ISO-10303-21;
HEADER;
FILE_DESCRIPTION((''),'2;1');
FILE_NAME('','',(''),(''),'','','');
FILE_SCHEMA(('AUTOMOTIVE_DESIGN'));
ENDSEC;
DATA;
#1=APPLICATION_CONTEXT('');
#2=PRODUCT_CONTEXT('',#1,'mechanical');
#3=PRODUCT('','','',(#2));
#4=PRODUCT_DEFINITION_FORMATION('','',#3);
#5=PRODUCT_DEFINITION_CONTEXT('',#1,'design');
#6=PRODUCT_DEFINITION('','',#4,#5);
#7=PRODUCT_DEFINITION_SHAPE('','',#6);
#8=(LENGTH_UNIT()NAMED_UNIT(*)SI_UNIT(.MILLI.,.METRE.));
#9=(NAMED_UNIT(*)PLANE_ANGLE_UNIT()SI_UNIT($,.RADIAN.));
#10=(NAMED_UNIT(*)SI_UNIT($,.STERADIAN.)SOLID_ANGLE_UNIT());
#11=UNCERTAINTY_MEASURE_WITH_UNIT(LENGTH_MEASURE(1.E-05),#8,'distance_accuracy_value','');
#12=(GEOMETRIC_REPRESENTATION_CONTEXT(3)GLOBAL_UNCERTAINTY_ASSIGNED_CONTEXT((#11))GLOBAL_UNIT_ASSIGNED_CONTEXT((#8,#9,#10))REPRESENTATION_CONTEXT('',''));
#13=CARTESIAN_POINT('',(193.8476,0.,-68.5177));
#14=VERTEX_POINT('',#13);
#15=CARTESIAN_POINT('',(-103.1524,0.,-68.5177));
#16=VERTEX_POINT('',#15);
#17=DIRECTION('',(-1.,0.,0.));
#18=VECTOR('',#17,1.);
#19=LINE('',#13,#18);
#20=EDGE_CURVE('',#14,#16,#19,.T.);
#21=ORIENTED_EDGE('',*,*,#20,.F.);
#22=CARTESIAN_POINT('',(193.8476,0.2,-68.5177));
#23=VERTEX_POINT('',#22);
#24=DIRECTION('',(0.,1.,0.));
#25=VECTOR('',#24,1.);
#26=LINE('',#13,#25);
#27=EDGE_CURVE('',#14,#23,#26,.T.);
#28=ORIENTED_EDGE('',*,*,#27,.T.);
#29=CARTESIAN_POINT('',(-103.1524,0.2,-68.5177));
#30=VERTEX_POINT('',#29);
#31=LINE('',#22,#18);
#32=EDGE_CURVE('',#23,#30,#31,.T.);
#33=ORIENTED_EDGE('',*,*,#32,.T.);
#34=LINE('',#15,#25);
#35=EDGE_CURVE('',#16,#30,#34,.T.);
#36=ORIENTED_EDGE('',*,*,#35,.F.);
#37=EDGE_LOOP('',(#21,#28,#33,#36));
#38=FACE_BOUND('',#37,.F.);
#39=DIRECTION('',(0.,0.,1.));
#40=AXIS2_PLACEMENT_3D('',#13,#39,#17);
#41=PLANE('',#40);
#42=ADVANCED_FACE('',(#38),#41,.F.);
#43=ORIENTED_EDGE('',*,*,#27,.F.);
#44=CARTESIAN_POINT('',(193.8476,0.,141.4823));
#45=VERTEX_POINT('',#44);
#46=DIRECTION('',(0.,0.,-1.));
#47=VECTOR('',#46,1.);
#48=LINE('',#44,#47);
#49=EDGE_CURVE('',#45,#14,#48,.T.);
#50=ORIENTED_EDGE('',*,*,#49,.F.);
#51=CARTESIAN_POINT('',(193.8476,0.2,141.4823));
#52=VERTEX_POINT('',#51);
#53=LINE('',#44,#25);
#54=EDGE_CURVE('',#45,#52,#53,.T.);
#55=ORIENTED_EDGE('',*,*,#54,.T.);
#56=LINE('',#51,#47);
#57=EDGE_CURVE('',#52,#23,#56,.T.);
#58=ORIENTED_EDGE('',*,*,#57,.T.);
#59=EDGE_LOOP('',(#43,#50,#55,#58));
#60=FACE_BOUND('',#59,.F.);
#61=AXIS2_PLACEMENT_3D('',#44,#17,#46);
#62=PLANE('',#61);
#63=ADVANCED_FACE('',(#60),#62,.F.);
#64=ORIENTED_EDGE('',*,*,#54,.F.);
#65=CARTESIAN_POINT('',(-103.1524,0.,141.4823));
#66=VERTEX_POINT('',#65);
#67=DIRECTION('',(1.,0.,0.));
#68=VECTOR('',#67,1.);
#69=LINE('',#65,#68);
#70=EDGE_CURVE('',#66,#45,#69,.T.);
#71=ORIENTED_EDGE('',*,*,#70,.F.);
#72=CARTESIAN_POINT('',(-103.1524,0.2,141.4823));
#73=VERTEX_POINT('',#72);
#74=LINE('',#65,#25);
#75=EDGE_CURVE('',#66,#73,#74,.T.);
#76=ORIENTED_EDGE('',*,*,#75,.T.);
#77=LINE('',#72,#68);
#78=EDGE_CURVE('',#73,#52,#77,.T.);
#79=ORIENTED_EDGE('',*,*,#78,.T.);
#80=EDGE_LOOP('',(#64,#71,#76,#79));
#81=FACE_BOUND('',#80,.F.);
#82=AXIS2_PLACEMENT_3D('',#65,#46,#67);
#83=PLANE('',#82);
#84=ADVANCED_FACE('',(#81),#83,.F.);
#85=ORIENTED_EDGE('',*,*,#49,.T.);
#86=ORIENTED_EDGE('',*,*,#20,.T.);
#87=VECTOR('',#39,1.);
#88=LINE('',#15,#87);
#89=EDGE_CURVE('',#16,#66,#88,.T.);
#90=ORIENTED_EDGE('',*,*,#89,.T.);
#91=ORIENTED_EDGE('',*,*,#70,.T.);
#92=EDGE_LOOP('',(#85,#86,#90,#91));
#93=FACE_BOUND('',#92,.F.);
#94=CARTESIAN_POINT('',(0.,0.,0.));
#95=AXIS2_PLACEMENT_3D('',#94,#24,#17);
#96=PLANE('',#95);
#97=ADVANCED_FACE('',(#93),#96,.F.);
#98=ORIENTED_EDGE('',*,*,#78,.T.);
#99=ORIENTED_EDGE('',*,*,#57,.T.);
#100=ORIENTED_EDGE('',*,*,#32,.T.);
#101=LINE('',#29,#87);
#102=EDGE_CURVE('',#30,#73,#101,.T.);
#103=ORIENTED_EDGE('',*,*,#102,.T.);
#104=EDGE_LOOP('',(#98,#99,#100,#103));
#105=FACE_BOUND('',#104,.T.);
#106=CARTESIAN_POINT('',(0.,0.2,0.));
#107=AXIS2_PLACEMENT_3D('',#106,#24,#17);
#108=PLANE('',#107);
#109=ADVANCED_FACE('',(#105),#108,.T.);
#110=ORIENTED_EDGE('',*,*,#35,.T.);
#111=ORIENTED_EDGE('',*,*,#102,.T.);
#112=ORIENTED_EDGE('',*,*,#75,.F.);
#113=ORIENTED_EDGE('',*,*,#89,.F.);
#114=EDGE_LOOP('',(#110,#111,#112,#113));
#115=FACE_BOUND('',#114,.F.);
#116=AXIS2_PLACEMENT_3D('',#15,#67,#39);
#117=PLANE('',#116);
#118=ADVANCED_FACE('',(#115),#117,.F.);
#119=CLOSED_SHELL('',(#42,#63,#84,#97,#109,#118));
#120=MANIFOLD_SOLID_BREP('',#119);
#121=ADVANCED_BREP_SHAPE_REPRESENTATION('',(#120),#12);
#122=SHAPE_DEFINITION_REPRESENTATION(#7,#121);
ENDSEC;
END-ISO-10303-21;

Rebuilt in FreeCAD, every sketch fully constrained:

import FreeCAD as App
import Part
import Sketcher
from FreeCAD import Vector
Q = App.Units.Quantity


def add_polygon(sketch, points):
    """Adds a closed chain of lines whose ends are joined by coincident constraints."""
    first, n = sketch.GeometryCount, len(points)
    for a, b in zip(points, points[1:] + points[:1]):
        sketch.addGeometry(Part.LineSegment(App.Vector(*a, 0), App.Vector(*b, 0)), False)
    for i in range(n):
        sketch.addConstraint(Sketcher.Constraint("Coincident", first + i, 2, first + (i + 1) % n, 1))

doc = App.newDocument("Part")
body = doc.addObject("PartDesign::Body", "Body")

# Sketch on XZ plane
sketch1 = doc.addObject("Sketcher::SketchObject", "Sketch")
body.addObject(sketch1)
sketch1.AttachmentSupport = (doc.XZ_Plane, [""])
sketch1.MapMode = "FlatFace"
add_polygon(sketch1, [(-103, -69), (-103, 141), (194, 141), (194, -69)])  # lines 0-3
sketch1.addConstraint([
    Sketcher.Constraint("Vertical", 0),
    Sketcher.Constraint("Horizontal", 1),
    Sketcher.Constraint("Vertical", 2),
    Sketcher.Constraint("Horizontal", 3),
    Sketcher.Constraint("DistanceX", 1, 1, 1, 2, Q("297 mm")),
    Sketcher.Constraint("DistanceY", 0, 1, 0, 2, Q("210 mm")),
    Sketcher.Constraint("DistanceX", 0, 2, -1, 1, Q("103.1524 mm")),
    Sketcher.Constraint("DistanceY", -1, 1, 0, 2, Q("141.4823 mm")),
])
pad1 = doc.addObject("PartDesign::Pad", "Pad")
body.addObject(pad1)
pad1.Profile = sketch1
pad1.Length = 0.2
pad1.Reversed = True

doc.recompute()
